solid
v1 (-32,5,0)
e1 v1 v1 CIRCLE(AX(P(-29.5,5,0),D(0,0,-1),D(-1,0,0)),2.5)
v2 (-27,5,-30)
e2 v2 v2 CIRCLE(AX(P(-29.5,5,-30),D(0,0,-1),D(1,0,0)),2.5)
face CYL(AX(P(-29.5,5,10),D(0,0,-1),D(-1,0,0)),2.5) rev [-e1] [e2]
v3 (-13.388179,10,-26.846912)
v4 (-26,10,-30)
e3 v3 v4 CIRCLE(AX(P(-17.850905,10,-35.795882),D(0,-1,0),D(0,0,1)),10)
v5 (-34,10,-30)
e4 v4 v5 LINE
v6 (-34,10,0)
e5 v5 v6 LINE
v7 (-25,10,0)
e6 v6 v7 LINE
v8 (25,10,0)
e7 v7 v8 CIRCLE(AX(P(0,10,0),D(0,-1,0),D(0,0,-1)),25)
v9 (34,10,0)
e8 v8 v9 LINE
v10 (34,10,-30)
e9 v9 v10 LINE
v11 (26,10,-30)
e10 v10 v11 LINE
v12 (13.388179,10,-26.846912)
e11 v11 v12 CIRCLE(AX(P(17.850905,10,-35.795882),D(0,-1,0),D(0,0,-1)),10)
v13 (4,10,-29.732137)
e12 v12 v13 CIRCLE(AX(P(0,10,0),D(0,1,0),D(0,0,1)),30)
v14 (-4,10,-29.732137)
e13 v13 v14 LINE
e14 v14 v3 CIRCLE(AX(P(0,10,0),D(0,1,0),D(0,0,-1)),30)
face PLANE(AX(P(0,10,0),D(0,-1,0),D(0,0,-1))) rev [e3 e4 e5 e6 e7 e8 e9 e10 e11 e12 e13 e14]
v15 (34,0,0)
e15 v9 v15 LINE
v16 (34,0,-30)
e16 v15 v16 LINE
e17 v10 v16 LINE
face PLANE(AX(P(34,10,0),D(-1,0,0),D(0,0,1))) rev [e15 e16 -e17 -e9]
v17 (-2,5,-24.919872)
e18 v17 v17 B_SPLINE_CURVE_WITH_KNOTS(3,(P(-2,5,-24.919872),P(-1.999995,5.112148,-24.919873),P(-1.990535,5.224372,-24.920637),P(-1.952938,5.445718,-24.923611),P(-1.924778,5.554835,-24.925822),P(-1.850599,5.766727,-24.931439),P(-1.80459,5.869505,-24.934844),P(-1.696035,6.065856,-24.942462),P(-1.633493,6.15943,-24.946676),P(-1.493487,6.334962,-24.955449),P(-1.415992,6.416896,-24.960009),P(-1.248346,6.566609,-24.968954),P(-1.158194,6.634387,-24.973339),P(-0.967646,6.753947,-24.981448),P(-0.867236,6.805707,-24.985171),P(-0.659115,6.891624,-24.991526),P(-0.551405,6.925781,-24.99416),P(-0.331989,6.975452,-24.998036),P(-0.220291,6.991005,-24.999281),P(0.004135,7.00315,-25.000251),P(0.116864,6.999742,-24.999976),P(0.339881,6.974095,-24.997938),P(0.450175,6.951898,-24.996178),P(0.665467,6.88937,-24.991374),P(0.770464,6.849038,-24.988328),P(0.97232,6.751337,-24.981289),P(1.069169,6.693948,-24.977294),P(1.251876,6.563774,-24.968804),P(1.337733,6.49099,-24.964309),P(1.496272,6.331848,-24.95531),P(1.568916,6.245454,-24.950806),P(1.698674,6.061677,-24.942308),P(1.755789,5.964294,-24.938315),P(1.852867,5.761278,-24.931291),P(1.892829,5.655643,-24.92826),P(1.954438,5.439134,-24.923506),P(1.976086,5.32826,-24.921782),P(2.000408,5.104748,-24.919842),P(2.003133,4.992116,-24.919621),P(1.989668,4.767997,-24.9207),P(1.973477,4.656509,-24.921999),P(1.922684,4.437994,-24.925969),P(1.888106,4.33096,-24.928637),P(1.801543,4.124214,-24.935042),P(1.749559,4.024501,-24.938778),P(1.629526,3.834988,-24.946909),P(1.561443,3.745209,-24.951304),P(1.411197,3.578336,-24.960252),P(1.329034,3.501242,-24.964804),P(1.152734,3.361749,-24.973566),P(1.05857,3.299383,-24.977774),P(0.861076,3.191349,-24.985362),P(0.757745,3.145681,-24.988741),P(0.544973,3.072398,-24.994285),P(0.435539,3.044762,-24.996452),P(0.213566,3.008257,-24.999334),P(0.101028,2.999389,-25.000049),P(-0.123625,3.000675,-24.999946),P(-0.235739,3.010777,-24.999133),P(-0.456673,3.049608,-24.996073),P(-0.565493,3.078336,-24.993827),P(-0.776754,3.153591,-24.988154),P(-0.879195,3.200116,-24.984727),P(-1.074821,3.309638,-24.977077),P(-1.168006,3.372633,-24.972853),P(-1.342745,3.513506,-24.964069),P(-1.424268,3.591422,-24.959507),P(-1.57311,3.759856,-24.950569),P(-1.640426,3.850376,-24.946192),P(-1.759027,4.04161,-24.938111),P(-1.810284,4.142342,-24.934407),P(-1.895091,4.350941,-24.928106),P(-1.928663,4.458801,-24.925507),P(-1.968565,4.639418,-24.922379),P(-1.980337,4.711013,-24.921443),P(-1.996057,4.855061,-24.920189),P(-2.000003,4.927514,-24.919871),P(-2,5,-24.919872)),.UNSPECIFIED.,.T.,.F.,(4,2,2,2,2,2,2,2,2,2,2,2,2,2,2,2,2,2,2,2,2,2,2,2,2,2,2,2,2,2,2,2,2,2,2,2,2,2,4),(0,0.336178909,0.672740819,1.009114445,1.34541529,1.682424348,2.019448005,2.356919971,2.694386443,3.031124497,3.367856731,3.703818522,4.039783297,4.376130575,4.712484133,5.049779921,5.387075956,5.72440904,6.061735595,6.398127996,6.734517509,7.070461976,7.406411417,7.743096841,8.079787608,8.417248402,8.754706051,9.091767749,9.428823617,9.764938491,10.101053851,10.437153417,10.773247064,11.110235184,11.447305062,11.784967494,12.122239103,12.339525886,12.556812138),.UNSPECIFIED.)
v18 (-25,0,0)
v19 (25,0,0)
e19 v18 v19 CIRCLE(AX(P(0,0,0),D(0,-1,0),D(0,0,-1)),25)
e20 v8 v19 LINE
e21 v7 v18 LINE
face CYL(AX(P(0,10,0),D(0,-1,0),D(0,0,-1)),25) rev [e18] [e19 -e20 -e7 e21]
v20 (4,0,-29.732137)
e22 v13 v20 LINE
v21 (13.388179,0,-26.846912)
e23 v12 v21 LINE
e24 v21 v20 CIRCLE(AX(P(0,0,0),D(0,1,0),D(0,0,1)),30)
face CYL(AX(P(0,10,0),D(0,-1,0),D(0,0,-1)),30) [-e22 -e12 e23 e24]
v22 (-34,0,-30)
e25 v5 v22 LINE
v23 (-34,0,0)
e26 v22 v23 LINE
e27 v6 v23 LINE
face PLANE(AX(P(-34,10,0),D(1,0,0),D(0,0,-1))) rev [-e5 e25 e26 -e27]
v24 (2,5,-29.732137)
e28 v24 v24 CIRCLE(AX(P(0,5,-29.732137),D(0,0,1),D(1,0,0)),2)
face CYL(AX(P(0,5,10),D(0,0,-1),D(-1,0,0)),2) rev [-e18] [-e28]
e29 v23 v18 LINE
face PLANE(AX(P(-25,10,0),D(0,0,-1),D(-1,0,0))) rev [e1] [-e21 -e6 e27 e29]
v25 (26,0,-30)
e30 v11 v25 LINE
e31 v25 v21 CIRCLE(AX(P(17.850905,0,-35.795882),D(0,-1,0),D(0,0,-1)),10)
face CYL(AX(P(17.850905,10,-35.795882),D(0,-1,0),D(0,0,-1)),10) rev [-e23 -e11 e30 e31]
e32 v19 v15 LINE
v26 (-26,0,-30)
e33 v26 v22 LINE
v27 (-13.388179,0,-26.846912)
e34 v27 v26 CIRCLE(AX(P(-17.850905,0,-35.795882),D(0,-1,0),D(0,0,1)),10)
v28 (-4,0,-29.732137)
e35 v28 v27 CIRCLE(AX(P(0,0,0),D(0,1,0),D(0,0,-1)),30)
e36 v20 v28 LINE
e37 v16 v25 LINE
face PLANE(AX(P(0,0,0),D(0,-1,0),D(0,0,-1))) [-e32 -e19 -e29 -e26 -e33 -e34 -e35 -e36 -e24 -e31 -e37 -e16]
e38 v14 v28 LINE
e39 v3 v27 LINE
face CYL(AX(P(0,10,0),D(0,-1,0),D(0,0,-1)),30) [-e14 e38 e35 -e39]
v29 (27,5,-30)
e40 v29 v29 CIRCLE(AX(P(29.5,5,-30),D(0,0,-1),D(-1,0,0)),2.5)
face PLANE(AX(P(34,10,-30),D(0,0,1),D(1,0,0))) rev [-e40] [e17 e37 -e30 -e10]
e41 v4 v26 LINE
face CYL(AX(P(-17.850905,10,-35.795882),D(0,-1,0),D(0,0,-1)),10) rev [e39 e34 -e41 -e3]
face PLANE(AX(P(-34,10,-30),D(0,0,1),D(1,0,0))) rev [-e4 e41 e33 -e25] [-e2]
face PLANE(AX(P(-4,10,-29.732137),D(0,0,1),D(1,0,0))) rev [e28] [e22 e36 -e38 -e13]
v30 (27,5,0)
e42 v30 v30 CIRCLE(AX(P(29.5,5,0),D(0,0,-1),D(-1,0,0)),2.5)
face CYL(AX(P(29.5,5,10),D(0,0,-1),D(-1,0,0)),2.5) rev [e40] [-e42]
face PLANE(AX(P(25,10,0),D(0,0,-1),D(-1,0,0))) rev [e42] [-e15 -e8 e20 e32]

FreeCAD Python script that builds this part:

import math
import FreeCAD as App
import Part
import Sketcher

V = App.Vector

doc = App.newDocument("Part")
body = doc.addObject("PartDesign::Body", "Body")

# Sketch on XZ plane
sketch1 = doc.addObject("Sketcher::SketchObject", "Sketch")
body.addObject(sketch1)
sketch1.AttachmentSupport = (doc.XZ_Plane, [""])
sketch1.MapMode = "FlatFace"
sketch1.addGeometry(Part.LineSegment(V(-34, 0, 0), V(-25, 0, 0)), False)
sketch1.addGeometry(Part.ArcOfCircle(Part.Circle(V(0, 0, 0), V(0, 0, 1), 25), math.radians(180), math.radians(360)), False)
sketch1.addGeometry(Part.LineSegment(V(25, 0, 0), V(34, 0, 0)), False)
sketch1.addGeometry(Part.LineSegment(V(34, 0, 0), V(34, -30, 0)), False)
sketch1.addGeometry(Part.LineSegment(V(34, -30, 0), V(26, -30, 0)), False)
sketch1.addGeometry(Part.ArcOfCircle(Part.Circle(V(17.850905, -35.795882, 0), V(0, 0, 1), 10), math.radians(35.421586), math.radians(116.50479)), False)
sketch1.addGeometry(Part.ArcOfCircle(Part.Circle(V(0, 0, 0), V(0, 0, 1), 30), math.radians(-82.337744), math.radians(-63.49521)), False)
sketch1.addGeometry(Part.LineSegment(V(4, -29.732137, 0), V(-4, -29.732137, 0)), False)
sketch1.addGeometry(Part.ArcOfCircle(Part.Circle(V(0, 0, 0), V(0, 0, 1), 30), math.radians(-116.50479), math.radians(-97.662256)), False)
sketch1.addGeometry(Part.ArcOfCircle(Part.Circle(V(-17.850905, -35.795882, 0), V(0, 0, 1), 10), math.radians(63.49521), math.radians(144.578414)), False)
sketch1.addGeometry(Part.LineSegment(V(-26, -30, 0), V(-34, -30, 0)), False)
sketch1.addGeometry(Part.LineSegment(V(-34, -30, 0), V(-34, 0, 0)), False)
sketch1.addConstraint(Sketcher.Constraint("Coincident", 0, 2, 1, 1))
sketch1.addConstraint(Sketcher.Constraint("Coincident", 1, 2, 2, 1))
sketch1.addConstraint(Sketcher.Constraint("Coincident", 2, 2, 3, 1))
sketch1.addConstraint(Sketcher.Constraint("Coincident", 3, 2, 4, 1))
sketch1.addConstraint(Sketcher.Constraint("Coincident", 4, 2, 5, 1))
sketch1.addConstraint(Sketcher.Constraint("Tangent", 5, 2, 6, 2))
sketch1.addConstraint(Sketcher.Constraint("Coincident", 6, 1, 7, 1))
sketch1.addConstraint(Sketcher.Constraint("Coincident", 7, 2, 8, 2))
sketch1.addConstraint(Sketcher.Constraint("Tangent", 8, 1, 9, 1))
sketch1.addConstraint(Sketcher.Constraint("Coincident", 9, 2, 10, 1))
sketch1.addConstraint(Sketcher.Constraint("Coincident", 10, 2, 11, 1))
sketch1.addConstraint(Sketcher.Constraint("Coincident", 11, 2, 0, 1))
sketch1.addConstraint(Sketcher.Constraint("Horizontal", 0))
sketch1.addConstraint(Sketcher.Constraint("Horizontal", 2))
sketch1.addConstraint(Sketcher.Constraint("Vertical", 3))
sketch1.addConstraint(Sketcher.Constraint("Horizontal", 4))
sketch1.addConstraint(Sketcher.Constraint("Horizontal", 7))
sketch1.addConstraint(Sketcher.Constraint("Horizontal", 10))
sketch1.addConstraint(Sketcher.Constraint("Vertical", 11))
sketch1.addConstraint(Sketcher.Constraint("Coincident", 1, 3, -1, 1))
sketch1.addConstraint(Sketcher.Constraint("Coincident", 6, 3, -1, 1))
sketch1.addConstraint(Sketcher.Constraint("Coincident", 8, 3, -1, 1))
sketch1.addConstraint(Sketcher.Constraint("Equal", 6, 8))
sketch1.addConstraint(Sketcher.Constraint("Equal", 5, 9))
sketch1.addConstraint(Sketcher.Constraint("Symmetric", 2, 2, 11, 2, -1, 1))
sketch1.addConstraint(Sketcher.Constraint("Symmetric", 4, 2, 9, 2, -2))
sketch1.addConstraint(Sketcher.Constraint("PointOnObject", 0, 2, -1))
sketch1.addConstraint(Sketcher.Constraint("Equal", 4, 7))
sketch1.addConstraint(Sketcher.Constraint("Radius", 1, 25.0))
sketch1.addConstraint(Sketcher.Constraint("Radius", 5, 10.0))
sketch1.addConstraint(Sketcher.Constraint("Radius", 6, 30.0))
sketch1.addConstraint(Sketcher.Constraint("DistanceX", 0, 1, 0, 2, 9.0))
sketch1.addConstraint(Sketcher.Constraint("DistanceX", 4, 2, 4, 1, 8.0))
sketch1.addConstraint(Sketcher.Constraint("DistanceY", 3, 2, 3, 1, 30.0))
pad1 = doc.addObject("PartDesign::Pad", "Pad")
body.addObject(pad1)
pad1.Profile = sketch1
pad1.Length = 10
pad1.Reversed = True

# Sketch on XY plane
sketch2 = doc.addObject("Sketcher::SketchObject", "Sketch001")
body.addObject(sketch2)
sketch2.AttachmentSupport = (doc.XY_Plane, [""])
sketch2.MapMode = "FlatFace"
sketch2.AttachmentOffset = App.Placement(V(0, 0, -30), App.Rotation())
sketch2.addGeometry(Part.Circle(V(29.5, 5, 0), V(0, 0, 1), 2.5), False)
sketch2.addGeometry(Part.Circle(V(-29.5, 5, 0), V(0, 0, 1), 2.5), False)
sketch2.addGeometry(Part.Circle(V(0, 5, 0), V(0, 0, 1), 2), False)
sketch2.addConstraint(Sketcher.Constraint("Equal", 0, 1))
sketch2.addConstraint(Sketcher.Constraint("Symmetric", 0, 3, 1, 3, -2))
sketch2.addConstraint(Sketcher.Constraint("PointOnObject", 2, 3, -2))
sketch2.addConstraint(Sketcher.Constraint("Horizontal", 1, 3, 2, 3))
sketch2.addConstraint(Sketcher.Constraint("Diameter", 0, 5.0))
sketch2.addConstraint(Sketcher.Constraint("Diameter", 2, 4.0))
sketch2.addConstraint(Sketcher.Constraint("DistanceY", -1, 1, 0, 3, 5.0))
sketch2.addConstraint(Sketcher.Constraint("DistanceX", 1, 3, 0, 3, 59.0))
pocket1 = doc.addObject("PartDesign::Pocket", "Pocket")
body.addObject(pocket1)
pocket1.Profile = sketch2
pocket1.Length = 40
pocket1.Reversed = True

doc.recompute()
